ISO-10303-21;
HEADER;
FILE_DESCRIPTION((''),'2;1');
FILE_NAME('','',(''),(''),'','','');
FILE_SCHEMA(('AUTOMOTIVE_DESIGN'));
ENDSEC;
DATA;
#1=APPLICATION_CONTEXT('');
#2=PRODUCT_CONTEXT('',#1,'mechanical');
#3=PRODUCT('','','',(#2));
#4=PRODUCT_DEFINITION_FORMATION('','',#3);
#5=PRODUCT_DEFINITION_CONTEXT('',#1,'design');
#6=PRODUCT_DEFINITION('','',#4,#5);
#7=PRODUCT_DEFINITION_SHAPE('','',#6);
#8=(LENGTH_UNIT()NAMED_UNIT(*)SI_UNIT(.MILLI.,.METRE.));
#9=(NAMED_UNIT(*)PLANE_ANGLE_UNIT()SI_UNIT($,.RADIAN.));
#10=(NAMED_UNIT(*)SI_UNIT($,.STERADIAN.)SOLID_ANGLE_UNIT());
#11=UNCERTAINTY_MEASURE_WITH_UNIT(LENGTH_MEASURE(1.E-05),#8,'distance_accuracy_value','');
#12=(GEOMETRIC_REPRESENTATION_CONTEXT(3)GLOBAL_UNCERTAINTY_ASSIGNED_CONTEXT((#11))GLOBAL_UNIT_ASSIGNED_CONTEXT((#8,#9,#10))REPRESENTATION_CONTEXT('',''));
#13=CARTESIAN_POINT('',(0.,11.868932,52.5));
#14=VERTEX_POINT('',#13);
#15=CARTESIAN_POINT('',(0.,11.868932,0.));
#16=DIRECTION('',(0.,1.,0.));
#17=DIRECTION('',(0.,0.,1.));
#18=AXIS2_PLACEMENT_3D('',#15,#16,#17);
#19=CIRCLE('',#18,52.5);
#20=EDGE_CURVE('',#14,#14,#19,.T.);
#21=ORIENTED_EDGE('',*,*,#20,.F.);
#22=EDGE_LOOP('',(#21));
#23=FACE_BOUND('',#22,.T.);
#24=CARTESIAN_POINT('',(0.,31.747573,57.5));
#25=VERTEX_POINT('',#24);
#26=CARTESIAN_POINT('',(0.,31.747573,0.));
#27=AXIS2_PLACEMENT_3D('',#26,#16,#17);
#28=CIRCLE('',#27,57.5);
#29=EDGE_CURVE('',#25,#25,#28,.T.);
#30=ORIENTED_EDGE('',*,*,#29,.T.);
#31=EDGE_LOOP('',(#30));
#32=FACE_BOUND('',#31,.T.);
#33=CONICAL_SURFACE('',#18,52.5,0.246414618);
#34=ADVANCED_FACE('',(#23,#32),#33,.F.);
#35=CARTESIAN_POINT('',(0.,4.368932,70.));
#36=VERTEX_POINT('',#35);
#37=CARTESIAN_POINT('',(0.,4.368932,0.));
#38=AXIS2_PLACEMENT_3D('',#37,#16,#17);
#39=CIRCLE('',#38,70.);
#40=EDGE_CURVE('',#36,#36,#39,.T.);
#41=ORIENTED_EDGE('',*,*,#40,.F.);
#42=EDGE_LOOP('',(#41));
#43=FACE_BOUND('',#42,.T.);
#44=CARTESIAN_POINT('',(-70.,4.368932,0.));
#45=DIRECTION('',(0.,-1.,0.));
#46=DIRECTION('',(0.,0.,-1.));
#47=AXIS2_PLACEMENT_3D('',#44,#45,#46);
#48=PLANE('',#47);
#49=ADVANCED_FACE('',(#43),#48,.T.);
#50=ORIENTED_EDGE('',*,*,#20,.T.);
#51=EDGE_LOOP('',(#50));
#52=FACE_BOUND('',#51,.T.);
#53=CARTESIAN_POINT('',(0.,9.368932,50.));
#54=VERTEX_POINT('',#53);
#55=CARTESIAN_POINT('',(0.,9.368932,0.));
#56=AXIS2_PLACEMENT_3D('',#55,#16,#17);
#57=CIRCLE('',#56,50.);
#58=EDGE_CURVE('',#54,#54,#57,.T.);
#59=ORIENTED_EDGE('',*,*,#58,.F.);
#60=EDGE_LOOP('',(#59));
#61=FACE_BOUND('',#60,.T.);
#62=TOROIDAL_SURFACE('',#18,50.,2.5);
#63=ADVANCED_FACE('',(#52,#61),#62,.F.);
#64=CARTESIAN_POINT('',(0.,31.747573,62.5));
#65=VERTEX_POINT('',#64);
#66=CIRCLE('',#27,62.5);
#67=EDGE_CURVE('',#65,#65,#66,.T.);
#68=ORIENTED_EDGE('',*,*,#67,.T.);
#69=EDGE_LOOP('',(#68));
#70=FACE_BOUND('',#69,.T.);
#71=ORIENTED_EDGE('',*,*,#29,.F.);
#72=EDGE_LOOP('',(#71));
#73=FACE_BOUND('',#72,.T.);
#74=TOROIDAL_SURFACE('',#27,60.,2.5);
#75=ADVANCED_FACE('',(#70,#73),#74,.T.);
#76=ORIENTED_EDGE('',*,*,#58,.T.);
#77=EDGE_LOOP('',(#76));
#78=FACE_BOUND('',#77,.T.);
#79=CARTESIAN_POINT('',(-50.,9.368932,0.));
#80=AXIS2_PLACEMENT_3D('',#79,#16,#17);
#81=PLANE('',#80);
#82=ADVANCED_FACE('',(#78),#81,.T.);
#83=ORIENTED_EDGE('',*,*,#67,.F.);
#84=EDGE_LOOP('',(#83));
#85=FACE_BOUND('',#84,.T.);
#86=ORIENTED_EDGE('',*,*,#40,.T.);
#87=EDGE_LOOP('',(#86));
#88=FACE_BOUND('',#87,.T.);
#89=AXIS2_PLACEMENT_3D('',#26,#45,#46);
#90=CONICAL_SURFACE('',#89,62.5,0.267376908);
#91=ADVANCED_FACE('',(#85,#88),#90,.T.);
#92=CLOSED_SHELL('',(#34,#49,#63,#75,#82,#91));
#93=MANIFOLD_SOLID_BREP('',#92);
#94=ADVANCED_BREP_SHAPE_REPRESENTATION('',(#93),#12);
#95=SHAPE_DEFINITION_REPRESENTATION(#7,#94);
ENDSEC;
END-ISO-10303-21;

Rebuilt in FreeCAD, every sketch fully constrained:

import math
import FreeCAD as App
import Part
import Sketcher
from FreeCAD import Vector
Q = App.Units.Quantity

doc = App.newDocument("Part")
body = doc.addObject("PartDesign::Body", "Body")

sketch1 = body.newObject("Sketcher::SketchObject", "Sketch")
sketch1.AttachmentSupport = (doc.getObject("XY_Plane"), [""])
sketch1.MapMode = "FlatFace"
sketch1.addGeometry(Part.LineSegment(Vector(-70, 4.4, 0), Vector(0, 4.4, 0)), False)
sketch1.addGeometry(Part.LineSegment(Vector(0, 4.4, 0), Vector(0, 9.4, 0)), False)
sketch1.addGeometry(Part.LineSegment(Vector(0, 9.4, 0), Vector(-50, 9.4, 0)), False)
sketch1.addGeometry(Part.ArcOfCircle(Part.Circle(Vector(-50, 11.9, 0), Vector(0, 0, 1), 2.5), math.radians(180), math.radians(270)), False)
sketch1.addGeometry(Part.LineSegment(Vector(-52.5, 11.9, 0), Vector(-57.5, 31.7, 0)), False)
sketch1.addGeometry(Part.ArcOfCircle(Part.Circle(Vector(-60, 31.7, 0), Vector(0, 0, 1), 2.5), math.radians(0), math.radians(180)), False)
sketch1.addGeometry(Part.LineSegment(Vector(-62.5, 31.7, 0), Vector(-70, 4.4, 0)), False)
sketch1.addConstraint(Sketcher.Constraint("Coincident", 0, 2, 1, 1))
sketch1.addConstraint(Sketcher.Constraint("Coincident", 1, 2, 2, 1))
sketch1.addConstraint(Sketcher.Constraint("Tangent", 2, 2, 3, 2))
sketch1.addConstraint(Sketcher.Constraint("Coincident", 3, 1, 4, 1))
sketch1.addConstraint(Sketcher.Constraint("Coincident", 4, 2, 5, 1))
sketch1.addConstraint(Sketcher.Constraint("Coincident", 5, 2, 6, 1))
sketch1.addConstraint(Sketcher.Constraint("Coincident", 6, 2, 0, 1))
sketch1.addConstraint(Sketcher.Constraint("Horizontal", 0))
sketch1.addConstraint(Sketcher.Constraint("Vertical", 1))
sketch1.addConstraint(Sketcher.Constraint("Horizontal", 2))
sketch1.addConstraint(Sketcher.Constraint("Equal", 3, 5))
sketch1.addConstraint(Sketcher.Constraint("PointOnObject", 0, 2, -2))
sketch1.addConstraint(Sketcher.Constraint("Horizontal", 5, 3, 4, 2))
sketch1.addConstraint(Sketcher.Constraint("Horizontal", 4, 2, 5, 2))
sketch1.addConstraint(Sketcher.Constraint("Radius", 3, Q("2.5 mm")))
sketch1.addConstraint(Sketcher.Constraint("DistanceX", 0, 1, 0, 2, Q("70 mm")))
sketch1.addConstraint(Sketcher.Constraint("DistanceX", 2, 2, 2, 1, Q("50 mm")))
sketch1.addConstraint(Sketcher.Constraint("DistanceY", 1, 1, 1, 2, Q("5 mm")))
sketch1.addConstraint(Sketcher.Constraint("DistanceX", 5, 3, -1, 1, Q("60 mm")))
sketch1.addConstraint(Sketcher.Constraint("DistanceY", 2, 2, 3, 1, Q("2.5 mm")))
sketch1.addConstraint(Sketcher.Constraint("Distance", 6, Q("28.387321 mm")))
sketch1.addConstraint(Sketcher.Constraint("DistanceY", -1, 1, 3, 3, Q("11.868932 mm")))
revolution = body.newObject("PartDesign::Revolution", "Revolution")
revolution.Profile = sketch1
revolution.ReferenceAxis = (sketch1, ["V_Axis"])
revolution.Angle = 360

doc.recompute()
